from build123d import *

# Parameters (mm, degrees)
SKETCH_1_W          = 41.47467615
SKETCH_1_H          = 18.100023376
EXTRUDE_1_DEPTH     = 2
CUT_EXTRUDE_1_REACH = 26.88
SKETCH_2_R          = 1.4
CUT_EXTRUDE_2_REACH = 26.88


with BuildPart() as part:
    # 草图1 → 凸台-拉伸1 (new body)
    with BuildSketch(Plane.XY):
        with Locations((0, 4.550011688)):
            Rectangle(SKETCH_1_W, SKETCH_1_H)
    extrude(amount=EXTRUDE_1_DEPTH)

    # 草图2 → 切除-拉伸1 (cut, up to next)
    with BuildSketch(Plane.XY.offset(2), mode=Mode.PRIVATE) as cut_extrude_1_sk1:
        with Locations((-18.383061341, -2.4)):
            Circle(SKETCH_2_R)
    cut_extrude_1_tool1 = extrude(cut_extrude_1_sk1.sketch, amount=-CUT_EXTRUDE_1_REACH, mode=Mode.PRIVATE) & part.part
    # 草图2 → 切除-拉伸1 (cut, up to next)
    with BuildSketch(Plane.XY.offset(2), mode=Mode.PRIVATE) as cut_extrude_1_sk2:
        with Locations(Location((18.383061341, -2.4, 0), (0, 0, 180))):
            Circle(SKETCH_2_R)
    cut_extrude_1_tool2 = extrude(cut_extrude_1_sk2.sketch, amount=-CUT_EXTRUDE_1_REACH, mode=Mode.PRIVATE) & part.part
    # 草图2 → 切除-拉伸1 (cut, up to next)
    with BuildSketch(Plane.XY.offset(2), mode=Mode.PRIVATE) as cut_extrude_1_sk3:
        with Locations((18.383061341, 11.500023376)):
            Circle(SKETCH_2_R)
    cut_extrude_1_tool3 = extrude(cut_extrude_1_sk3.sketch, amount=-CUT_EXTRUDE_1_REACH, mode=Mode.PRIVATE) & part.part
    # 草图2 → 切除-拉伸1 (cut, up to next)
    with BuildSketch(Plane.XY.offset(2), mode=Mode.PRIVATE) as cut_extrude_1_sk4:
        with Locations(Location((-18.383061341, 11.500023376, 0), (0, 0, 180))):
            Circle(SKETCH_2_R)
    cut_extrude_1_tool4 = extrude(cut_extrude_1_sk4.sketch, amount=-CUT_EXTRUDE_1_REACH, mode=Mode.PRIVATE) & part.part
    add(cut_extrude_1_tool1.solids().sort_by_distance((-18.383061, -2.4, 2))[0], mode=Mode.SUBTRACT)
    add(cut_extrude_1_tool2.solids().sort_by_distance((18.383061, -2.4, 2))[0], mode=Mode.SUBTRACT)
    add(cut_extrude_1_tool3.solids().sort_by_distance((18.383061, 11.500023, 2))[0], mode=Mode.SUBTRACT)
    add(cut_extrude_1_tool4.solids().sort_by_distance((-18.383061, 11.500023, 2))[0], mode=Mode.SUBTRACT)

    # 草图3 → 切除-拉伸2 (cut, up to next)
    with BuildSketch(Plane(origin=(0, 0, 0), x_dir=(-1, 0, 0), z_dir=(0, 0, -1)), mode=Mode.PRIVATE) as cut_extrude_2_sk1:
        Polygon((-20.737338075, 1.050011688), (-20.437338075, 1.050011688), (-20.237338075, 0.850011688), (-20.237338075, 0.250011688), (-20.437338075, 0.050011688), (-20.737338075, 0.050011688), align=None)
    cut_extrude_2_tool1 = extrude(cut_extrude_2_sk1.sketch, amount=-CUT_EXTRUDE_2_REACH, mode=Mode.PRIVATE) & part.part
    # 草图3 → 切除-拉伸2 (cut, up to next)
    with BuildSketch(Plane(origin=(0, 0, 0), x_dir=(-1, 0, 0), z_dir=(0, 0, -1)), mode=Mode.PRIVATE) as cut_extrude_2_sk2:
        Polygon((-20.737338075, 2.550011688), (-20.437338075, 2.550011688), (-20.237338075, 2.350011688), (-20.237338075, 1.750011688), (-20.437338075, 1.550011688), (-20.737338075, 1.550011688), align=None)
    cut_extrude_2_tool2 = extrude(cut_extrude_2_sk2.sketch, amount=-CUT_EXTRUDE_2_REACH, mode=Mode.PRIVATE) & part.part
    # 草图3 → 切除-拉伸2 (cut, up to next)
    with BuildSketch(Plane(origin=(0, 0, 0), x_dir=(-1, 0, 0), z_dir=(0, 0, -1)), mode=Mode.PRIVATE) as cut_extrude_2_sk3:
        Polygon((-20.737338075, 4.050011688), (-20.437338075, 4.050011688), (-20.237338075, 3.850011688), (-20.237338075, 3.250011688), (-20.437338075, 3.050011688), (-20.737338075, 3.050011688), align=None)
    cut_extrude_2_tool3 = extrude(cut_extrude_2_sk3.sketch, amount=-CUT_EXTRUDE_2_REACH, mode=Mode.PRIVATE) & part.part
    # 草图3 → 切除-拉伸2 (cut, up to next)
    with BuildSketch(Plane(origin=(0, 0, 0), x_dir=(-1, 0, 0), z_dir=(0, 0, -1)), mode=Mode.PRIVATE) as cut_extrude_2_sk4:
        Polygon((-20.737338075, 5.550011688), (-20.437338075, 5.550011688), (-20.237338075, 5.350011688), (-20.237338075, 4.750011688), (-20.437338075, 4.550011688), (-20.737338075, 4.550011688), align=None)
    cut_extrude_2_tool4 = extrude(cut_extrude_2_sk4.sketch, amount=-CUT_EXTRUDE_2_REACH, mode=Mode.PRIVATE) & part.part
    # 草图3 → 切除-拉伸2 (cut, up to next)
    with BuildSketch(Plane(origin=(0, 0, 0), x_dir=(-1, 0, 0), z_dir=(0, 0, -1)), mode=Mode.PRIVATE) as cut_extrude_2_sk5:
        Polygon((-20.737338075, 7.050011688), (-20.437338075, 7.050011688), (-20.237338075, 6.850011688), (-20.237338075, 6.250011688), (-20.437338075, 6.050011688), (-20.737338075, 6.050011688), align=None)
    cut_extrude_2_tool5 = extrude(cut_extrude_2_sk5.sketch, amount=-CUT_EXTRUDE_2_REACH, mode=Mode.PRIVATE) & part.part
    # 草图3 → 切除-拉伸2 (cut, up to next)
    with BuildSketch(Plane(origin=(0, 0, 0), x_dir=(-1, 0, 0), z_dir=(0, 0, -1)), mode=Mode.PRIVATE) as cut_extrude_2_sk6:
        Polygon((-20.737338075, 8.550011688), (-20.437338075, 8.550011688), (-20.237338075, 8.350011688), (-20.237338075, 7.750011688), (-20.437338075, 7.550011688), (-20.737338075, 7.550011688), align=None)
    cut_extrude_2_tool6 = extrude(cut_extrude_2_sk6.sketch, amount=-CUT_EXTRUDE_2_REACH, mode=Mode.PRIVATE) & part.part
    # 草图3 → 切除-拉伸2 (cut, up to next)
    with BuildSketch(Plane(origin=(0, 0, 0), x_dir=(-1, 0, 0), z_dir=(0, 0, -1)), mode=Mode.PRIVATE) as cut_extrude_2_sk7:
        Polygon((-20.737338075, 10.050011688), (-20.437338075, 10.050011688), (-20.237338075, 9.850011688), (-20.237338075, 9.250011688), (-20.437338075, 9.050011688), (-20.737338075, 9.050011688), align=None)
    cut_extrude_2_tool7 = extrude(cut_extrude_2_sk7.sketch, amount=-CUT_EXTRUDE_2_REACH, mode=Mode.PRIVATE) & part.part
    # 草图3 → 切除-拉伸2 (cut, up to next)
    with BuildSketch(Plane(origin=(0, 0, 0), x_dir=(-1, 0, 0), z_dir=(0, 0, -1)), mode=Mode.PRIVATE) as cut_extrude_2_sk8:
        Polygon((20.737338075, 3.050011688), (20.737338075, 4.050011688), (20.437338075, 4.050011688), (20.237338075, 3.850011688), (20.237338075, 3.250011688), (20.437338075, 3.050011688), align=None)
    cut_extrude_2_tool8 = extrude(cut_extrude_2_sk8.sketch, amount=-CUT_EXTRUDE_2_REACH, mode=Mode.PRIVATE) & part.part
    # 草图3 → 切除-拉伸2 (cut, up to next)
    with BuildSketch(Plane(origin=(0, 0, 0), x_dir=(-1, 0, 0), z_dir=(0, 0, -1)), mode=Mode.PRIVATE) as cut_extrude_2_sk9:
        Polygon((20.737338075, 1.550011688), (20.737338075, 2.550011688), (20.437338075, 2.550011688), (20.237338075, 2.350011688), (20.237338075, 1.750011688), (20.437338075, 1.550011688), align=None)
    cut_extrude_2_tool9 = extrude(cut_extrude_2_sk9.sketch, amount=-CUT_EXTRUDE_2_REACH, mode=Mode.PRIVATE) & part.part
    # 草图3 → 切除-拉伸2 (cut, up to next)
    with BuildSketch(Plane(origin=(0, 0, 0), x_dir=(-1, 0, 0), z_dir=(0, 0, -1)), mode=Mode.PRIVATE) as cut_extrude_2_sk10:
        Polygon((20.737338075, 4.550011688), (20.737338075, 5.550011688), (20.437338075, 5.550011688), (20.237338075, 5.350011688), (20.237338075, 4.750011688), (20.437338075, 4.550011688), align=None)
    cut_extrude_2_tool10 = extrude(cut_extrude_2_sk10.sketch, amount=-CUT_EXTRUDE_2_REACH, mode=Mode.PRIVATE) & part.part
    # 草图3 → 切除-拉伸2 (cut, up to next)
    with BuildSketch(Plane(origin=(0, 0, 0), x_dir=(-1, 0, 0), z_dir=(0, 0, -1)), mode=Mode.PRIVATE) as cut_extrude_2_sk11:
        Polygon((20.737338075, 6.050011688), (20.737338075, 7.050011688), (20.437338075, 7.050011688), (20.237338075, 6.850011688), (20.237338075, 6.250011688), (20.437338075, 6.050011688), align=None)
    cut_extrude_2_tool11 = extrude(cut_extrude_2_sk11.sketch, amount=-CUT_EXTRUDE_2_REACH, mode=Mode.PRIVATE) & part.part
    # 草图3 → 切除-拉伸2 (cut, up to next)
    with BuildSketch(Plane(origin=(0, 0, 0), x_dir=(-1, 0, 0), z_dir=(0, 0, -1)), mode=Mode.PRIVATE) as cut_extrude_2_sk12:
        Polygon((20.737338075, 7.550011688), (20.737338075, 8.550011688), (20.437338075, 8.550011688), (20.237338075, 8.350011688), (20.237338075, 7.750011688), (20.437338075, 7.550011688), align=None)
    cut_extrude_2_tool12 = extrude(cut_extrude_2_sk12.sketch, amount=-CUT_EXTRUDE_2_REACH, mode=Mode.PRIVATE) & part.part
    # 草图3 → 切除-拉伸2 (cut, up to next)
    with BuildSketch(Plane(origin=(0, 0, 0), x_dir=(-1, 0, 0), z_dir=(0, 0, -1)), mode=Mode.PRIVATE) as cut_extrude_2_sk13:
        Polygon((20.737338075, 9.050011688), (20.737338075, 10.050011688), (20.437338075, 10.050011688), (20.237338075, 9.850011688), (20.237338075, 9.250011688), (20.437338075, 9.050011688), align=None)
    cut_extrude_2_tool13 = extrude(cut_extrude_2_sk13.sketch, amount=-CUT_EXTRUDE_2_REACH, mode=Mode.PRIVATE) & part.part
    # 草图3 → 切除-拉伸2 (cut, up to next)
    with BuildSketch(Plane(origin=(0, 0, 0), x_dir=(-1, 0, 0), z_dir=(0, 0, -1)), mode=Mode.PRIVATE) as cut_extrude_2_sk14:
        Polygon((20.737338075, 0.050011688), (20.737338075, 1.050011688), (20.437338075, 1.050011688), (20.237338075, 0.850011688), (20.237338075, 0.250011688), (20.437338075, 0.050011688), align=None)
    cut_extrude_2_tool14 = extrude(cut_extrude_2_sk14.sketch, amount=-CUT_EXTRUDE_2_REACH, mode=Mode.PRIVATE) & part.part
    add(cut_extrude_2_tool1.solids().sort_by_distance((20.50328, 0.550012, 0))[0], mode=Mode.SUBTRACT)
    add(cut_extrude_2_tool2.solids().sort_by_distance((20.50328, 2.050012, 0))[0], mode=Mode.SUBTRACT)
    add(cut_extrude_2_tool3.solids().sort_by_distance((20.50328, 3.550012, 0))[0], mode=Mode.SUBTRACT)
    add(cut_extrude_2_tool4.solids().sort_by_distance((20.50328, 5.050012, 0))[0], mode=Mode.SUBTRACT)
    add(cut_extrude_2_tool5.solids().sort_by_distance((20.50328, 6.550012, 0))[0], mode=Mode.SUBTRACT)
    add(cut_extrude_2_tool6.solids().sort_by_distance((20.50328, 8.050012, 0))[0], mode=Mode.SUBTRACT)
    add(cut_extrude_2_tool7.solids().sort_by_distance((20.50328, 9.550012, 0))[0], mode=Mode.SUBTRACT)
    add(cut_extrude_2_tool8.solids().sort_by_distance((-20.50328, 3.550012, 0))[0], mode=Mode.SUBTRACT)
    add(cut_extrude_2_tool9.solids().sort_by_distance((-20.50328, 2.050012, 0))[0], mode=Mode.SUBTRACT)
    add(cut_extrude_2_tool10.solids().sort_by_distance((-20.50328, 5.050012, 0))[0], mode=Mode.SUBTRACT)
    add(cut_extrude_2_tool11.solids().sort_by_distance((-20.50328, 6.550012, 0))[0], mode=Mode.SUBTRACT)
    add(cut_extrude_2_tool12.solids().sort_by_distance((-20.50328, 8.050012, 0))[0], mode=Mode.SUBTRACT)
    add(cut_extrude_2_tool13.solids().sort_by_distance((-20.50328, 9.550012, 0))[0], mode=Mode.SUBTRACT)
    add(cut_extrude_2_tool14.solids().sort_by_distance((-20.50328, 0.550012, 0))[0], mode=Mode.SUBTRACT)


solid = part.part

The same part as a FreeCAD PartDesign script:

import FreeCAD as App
import Part
import Sketcher

doc = App.newDocument("Part")
body = doc.addObject("PartDesign::Body", "Body")

# Sketch on XY plane
sketch1 = body.newObject("Sketcher::SketchObject", "Sketch")
sketch1.AttachmentSupport = (doc.getObject("XY_Plane"), [""])
sketch1.MapMode = "FlatFace"
sketch1.addGeometry(Part.LineSegment(App.Vector(-20.737338, 13.600023, 0), App.Vector(-20.737338, -4.5, 0)), False)
sketch1.addGeometry(Part.LineSegment(App.Vector(-20.737338, -4.5, 0), App.Vector(20.737338, -4.5, 0)), False)
sketch1.addGeometry(Part.LineSegment(App.Vector(20.737338, -4.5, 0), App.Vector(20.737338, 13.600023, 0)), False)
sketch1.addGeometry(Part.LineSegment(App.Vector(20.737338, 13.600023, 0), App.Vector(-20.737338, 13.600023, 0)), False)
sketch1.addConstraint(Sketcher.Constraint("Coincident", 0, 2, 1, 1))
sketch1.addConstraint(Sketcher.Constraint("Coincident", 1, 2, 2, 1))
sketch1.addConstraint(Sketcher.Constraint("Coincident", 2, 2, 3, 1))
sketch1.addConstraint(Sketcher.Constraint("Coincident", 3, 2, 0, 1))
sketch1.addConstraint(Sketcher.Constraint("Vertical", 0))
sketch1.addConstraint(Sketcher.Constraint("Horizontal", 1))
sketch1.addConstraint(Sketcher.Constraint("Vertical", 2))
sketch1.addConstraint(Sketcher.Constraint("Horizontal", 3))
sketch1.addConstraint(Sketcher.Constraint("DistanceY", 0, 2, -1, 1, 4.5))
sketch1.addConstraint(Sketcher.Constraint("DistanceX", 1, 1, 1, 2, 41.474676))
sketch1.addConstraint(Sketcher.Constraint("DistanceY", 0, 2, 0, 1, 18.100023))
sketch1.addConstraint(Sketcher.Constraint("DistanceX", 0, 2, -1, 1, 20.737338))
pad1 = body.newObject("PartDesign::Pad", "Pad")
pad1.Profile = sketch1
pad1.Length = 2

# Sketch on XY plane
sketch2 = body.newObject("Sketcher::SketchObject", "Sketch001")
sketch2.AttachmentSupport = (doc.getObject("XY_Plane"), [""])
sketch2.MapMode = "FlatFace"
sketch2.AttachmentOffset = App.Placement(App.Vector(0, 0, 2), App.Rotation())
sketch2.addGeometry(Part.Circle(App.Vector(-18.383061, -2.4, 0), App.Vector(0, 0, 1), 1.4), False)
sketch2.addConstraint(Sketcher.Constraint("Diameter", 0, 2.8))
sketch2.addConstraint(Sketcher.Constraint("DistanceY", 0, 3, -1, 1, 2.4))
sketch2.addConstraint(Sketcher.Constraint("DistanceX", 0, 3, -1, 1, 18.383061))
pocket1 = body.newObject("PartDesign::Pocket", "Pocket")
pocket1.Profile = sketch2
pocket1.Type = "UpToFirst"

# Sketch on XY plane
sketch3 = body.newObject("Sketcher::SketchObject", "Sketch002")
sketch3.AttachmentSupport = (doc.getObject("XY_Plane"), [""])
sketch3.MapMode = "FlatFace"
sketch3.AttachmentOffset = App.Placement(App.Vector(0, 0, 2), App.Rotation())
sketch3.addGeometry(Part.Circle(App.Vector(18.383061, -2.4, 0), App.Vector(0, 0, 1), 1.4), False)
sketch3.addConstraint(Sketcher.Constraint("Diameter", 0, 2.8))
sketch3.addConstraint(Sketcher.Constraint("DistanceY", 0, 3, -1, 1, 2.4))
sketch3.addConstraint(Sketcher.Constraint("DistanceX", -1, 1, 0, 3, 18.383061))
pocket2 = body.newObject("PartDesign::Pocket", "Pocket001")
pocket2.Profile = sketch3
pocket2.Type = "UpToFirst"

# Sketch on XY plane
sketch4 = body.newObject("Sketcher::SketchObject", "Sketch003")
sketch4.AttachmentSupport = (doc.getObject("XY_Plane"), [""])
sketch4.MapMode = "FlatFace"
sketch4.AttachmentOffset = App.Placement(App.Vector(0, 0, 2), App.Rotation())
sketch4.addGeometry(Part.Circle(App.Vector(18.383061, 11.500023, 0), App.Vector(0, 0, 1), 1.4), False)
sketch4.addConstraint(Sketcher.Constraint("Diameter", 0, 2.8))
sketch4.addConstraint(Sketcher.Constraint("DistanceX", -1, 1, 0, 3, 18.383061))
sketch4.addConstraint(Sketcher.Constraint("DistanceY", -1, 1, 0, 3, 11.500023))
pocket3 = body.newObject("PartDesign::Pocket", "Pocket002")
pocket3.Profile = sketch4
pocket3.Type = "UpToFirst"

# Sketch on XY plane
sketch5 = body.newObject("Sketcher::SketchObject", "Sketch004")
sketch5.AttachmentSupport = (doc.getObject("XY_Plane"), [""])
sketch5.MapMode = "FlatFace"
sketch5.AttachmentOffset = App.Placement(App.Vector(0, 0, 2), App.Rotation())
sketch5.addGeometry(Part.Circle(App.Vector(-18.383061, 11.500023, 0), App.Vector(0, 0, 1), 1.4), False)
sketch5.addConstraint(Sketcher.Constraint("Diameter", 0, 2.8))
sketch5.addConstraint(Sketcher.Constraint("DistanceX", 0, 3, -1, 1, 18.383061))
sketch5.addConstraint(Sketcher.Constraint("DistanceY", -1, 1, 0, 3, 11.500023))
pocket4 = body.newObject("PartDesign::Pocket", "Pocket003")
pocket4.Profile = sketch5
pocket4.Type = "UpToFirst"

# Sketch on XY plane
sketch6 = body.newObject("Sketcher::SketchObject", "Sketch005")
sketch6.AttachmentSupport = (doc.getObject("XY_Plane"), [""])
sketch6.MapMode = "FlatFace"
sketch6.addGeometry(Part.LineSegment(App.Vector(20.437338, 1.050012, 0), App.Vector(20.737338, 1.050012, 0)), False)
sketch6.addGeometry(Part.LineSegment(App.Vector(20.737338, 1.050012, 0), App.Vector(20.737338, 0.050012, 0)), False)
sketch6.addGeometry(Part.LineSegment(App.Vector(20.737338, 0.050012, 0), App.Vector(20.437338, 0.050012, 0)), False)
sketch6.addGeometry(Part.LineSegment(App.Vector(20.437338, 0.050012, 0), App.Vector(20.237338, 0.250012, 0)), False)
sketch6.addGeometry(Part.LineSegment(App.Vector(20.237338, 0.250012, 0), App.Vector(20.237338, 0.850012, 0)), False)
sketch6.addGeometry(Part.LineSegment(App.Vector(20.237338, 0.850012, 0), App.Vector(20.437338, 1.050012, 0)), False)
sketch6.addConstraint(Sketcher.Constraint("Coincident", 0, 2, 1, 1))
sketch6.addConstraint(Sketcher.Constraint("Coincident", 1, 2, 2, 1))
sketch6.addConstraint(Sketcher.Constraint("Coincident", 2, 2, 3, 1))
sketch6.addConstraint(Sketcher.Constraint("Coincident", 3, 2, 4, 1))
sketch6.addConstraint(Sketcher.Constraint("Coincident", 4, 2, 5, 1))
sketch6.addConstraint(Sketcher.Constraint("Coincident", 5, 2, 0, 1))
sketch6.addConstraint(Sketcher.Constraint("Horizontal", 0))
sketch6.addConstraint(Sketcher.Constraint("Vertical", 1))
sketch6.addConstraint(Sketcher.Constraint("Horizontal", 2))
sketch6.addConstraint(Sketcher.Constraint("Vertical", 4))
sketch6.addConstraint(Sketcher.Constraint("Perpendicular", 3, 5))
sketch6.addConstraint(Sketcher.Constraint("Vertical", 2, 2, 5, 2))
sketch6.addConstraint(Sketcher.Constraint("Equal", 3, 5))
sketch6.addConstraint(Sketcher.Constraint("DistanceY", 1, 2, 1, 1, 1.0))
sketch6.addConstraint(Sketcher.Constraint("DistanceX", 0, 1, 0, 2, 0.3))
sketch6.addConstraint(Sketcher.Constraint("DistanceY", 4, 1, 4, 2, 0.6))
sketch6.addConstraint(Sketcher.Constraint("DistanceX", -1, 1, 0, 2, 20.737338))
sketch6.addConstraint(Sketcher.Constraint("DistanceY", -1, 1, 0, 2, 1.050012))
pocket5 = body.newObject("PartDesign::Pocket", "Pocket004")
pocket5.Profile = sketch6
pocket5.Type = "UpToFirst"
pocket5.Reversed = True

# Sketch on XY plane
sketch7 = body.newObject("Sketcher::SketchObject", "Sketch006")
sketch7.AttachmentSupport = (doc.getObject("XY_Plane"), [""])
sketch7.MapMode = "FlatFace"
sketch7.addGeometry(Part.LineSegment(App.Vector(20.437338, 2.550012, 0), App.Vector(20.737338, 2.550012, 0)), False)
sketch7.addGeometry(Part.LineSegment(App.Vector(20.737338, 2.550012, 0), App.Vector(20.737338, 1.550012, 0)), False)
sketch7.addGeometry(Part.LineSegment(App.Vector(20.737338, 1.550012, 0), App.Vector(20.437338, 1.550012, 0)), False)
sketch7.addGeometry(Part.LineSegment(App.Vector(20.437338, 1.550012, 0), App.Vector(20.237338, 1.750012, 0)), False)
sketch7.addGeometry(Part.LineSegment(App.Vector(20.237338, 1.750012, 0), App.Vector(20.237338, 2.350012, 0)), False)
sketch7.addGeometry(Part.LineSegment(App.Vector(20.237338, 2.350012, 0), App.Vector(20.437338, 2.550012, 0)), False)
sketch7.addConstraint(Sketcher.Constraint("Coincident", 0, 2, 1, 1))
sketch7.addConstraint(Sketcher.Constraint("Coincident", 1, 2, 2, 1))
sketch7.addConstraint(Sketcher.Constraint("Coincident", 2, 2, 3, 1))
sketch7.addConstraint(Sketcher.Constraint("Coincident", 3, 2, 4, 1))
sketch7.addConstraint(Sketcher.Constraint("Coincident", 4, 2, 5, 1))
sketch7.addConstraint(Sketcher.Constraint("Coincident", 5, 2, 0, 1))
sketch7.addConstraint(Sketcher.Constraint("Horizontal", 0))
sketch7.addConstraint(Sketcher.Constraint("Vertical", 1))
sketch7.addConstraint(Sketcher.Constraint("Horizontal", 2))
sketch7.addConstraint(Sketcher.Constraint("Vertical", 4))
sketch7.addConstraint(Sketcher.Constraint("Perpendicular", 3, 5))
sketch7.addConstraint(Sketcher.Constraint("Vertical", 2, 2, 5, 2))
sketch7.addConstraint(Sketcher.Constraint("Equal", 3, 5))
sketch7.addConstraint(Sketcher.Constraint("DistanceY", 1, 2, 1, 1, 1.0))
sketch7.addConstraint(Sketcher.Constraint("DistanceX", 0, 1, 0, 2, 0.3))
sketch7.addConstraint(Sketcher.Constraint("DistanceY", 4, 1, 4, 2, 0.6))
sketch7.addConstraint(Sketcher.Constraint("DistanceX", -1, 1, 0, 2, 20.737338))
sketch7.addConstraint(Sketcher.Constraint("DistanceY", -1, 1, 0, 2, 2.550012))
pocket6 = body.newObject("PartDesign::Pocket", "Pocket005")
pocket6.Profile = sketch7
pocket6.Type = "UpToFirst"
pocket6.Reversed = True

# Sketch on XY plane
sketch8 = body.newObject("Sketcher::SketchObject", "Sketch007")
sketch8.AttachmentSupport = (doc.getObject("XY_Plane"), [""])
sketch8.MapMode = "FlatFace"
sketch8.addGeometry(Part.LineSegment(App.Vector(20.437338, 4.050012, 0), App.Vector(20.737338, 4.050012, 0)), False)
sketch8.addGeometry(Part.LineSegment(App.Vector(20.737338, 4.050012, 0), App.Vector(20.737338, 3.050012, 0)), False)
sketch8.addGeometry(Part.LineSegment(App.Vector(20.737338, 3.050012, 0), App.Vector(20.437338, 3.050012, 0)), False)
sketch8.addGeometry(Part.LineSegment(App.Vector(20.437338, 3.050012, 0), App.Vector(20.237338, 3.250012, 0)), False)
sketch8.addGeometry(Part.LineSegment(App.Vector(20.237338, 3.250012, 0), App.Vector(20.237338, 3.850012, 0)), False)
sketch8.addGeometry(Part.LineSegment(App.Vector(20.237338, 3.850012, 0), App.Vector(20.437338, 4.050012, 0)), False)
sketch8.addConstraint(Sketcher.Constraint("Coincident", 0, 2, 1, 1))
sketch8.addConstraint(Sketcher.Constraint("Coincident", 1, 2, 2, 1))
sketch8.addConstraint(Sketcher.Constraint("Coincident", 2, 2, 3, 1))
sketch8.addConstraint(Sketcher.Constraint("Coincident", 3, 2, 4, 1))
sketch8.addConstraint(Sketcher.Constraint("Coincident", 4, 2, 5, 1))
sketch8.addConstraint(Sketcher.Constraint("Coincident", 5, 2, 0, 1))
sketch8.addConstraint(Sketcher.Constraint("Horizontal", 0))
sketch8.addConstraint(Sketcher.Constraint("Vertical", 1))
sketch8.addConstraint(Sketcher.Constraint("Horizontal", 2))
sketch8.addConstraint(Sketcher.Constraint("Vertical", 4))
sketch8.addConstraint(Sketcher.Constraint("Perpendicular", 3, 5))
sketch8.addConstraint(Sketcher.Constraint("Vertical", 2, 2, 5, 2))
sketch8.addConstraint(Sketcher.Constraint("Equal", 3, 5))
sketch8.addConstraint(Sketcher.Constraint("DistanceY", 1, 2, 1, 1, 1.0))
sketch8.addConstraint(Sketcher.Constraint("DistanceX", 0, 1, 0, 2, 0.3))
sketch8.addConstraint(Sketcher.Constraint("DistanceY", 4, 1, 4, 2, 0.6))
sketch8.addConstraint(Sketcher.Constraint("DistanceX", -1, 1, 0, 2, 20.737338))
sketch8.addConstraint(Sketcher.Constraint("DistanceY", -1, 1, 0, 2, 4.050012))
pocket7 = body.newObject("PartDesign::Pocket", "Pocket006")
pocket7.Profile = sketch8
pocket7.Type = "UpToFirst"
pocket7.Reversed = True

# Sketch on XY plane
sketch9 = body.newObject("Sketcher::SketchObject", "Sketch008")
sketch9.AttachmentSupport = (doc.getObject("XY_Plane"), [""])
sketch9.MapMode = "FlatFace"
sketch9.addGeometry(Part.LineSegment(App.Vector(20.437338, 5.550012, 0), App.Vector(20.737338, 5.550012, 0)), False)
sketch9.addGeometry(Part.LineSegment(App.Vector(20.737338, 5.550012, 0), App.Vector(20.737338, 4.550012, 0)), False)
sketch9.addGeometry(Part.LineSegment(App.Vector(20.737338, 4.550012, 0), App.Vector(20.437338, 4.550012, 0)), False)
sketch9.addGeometry(Part.LineSegment(App.Vector(20.437338, 4.550012, 0), App.Vector(20.237338, 4.750012, 0)), False)
sketch9.addGeometry(Part.LineSegment(App.Vector(20.237338, 4.750012, 0), App.Vector(20.237338, 5.350012, 0)), False)
sketch9.addGeometry(Part.LineSegment(App.Vector(20.237338, 5.350012, 0), App.Vector(20.437338, 5.550012, 0)), False)
sketch9.addConstraint(Sketcher.Constraint("Coincident", 0, 2, 1, 1))
sketch9.addConstraint(Sketcher.Constraint("Coincident", 1, 2, 2, 1))
sketch9.addConstraint(Sketcher.Constraint("Coincident", 2, 2, 3, 1))
sketch9.addConstraint(Sketcher.Constraint("Coincident", 3, 2, 4, 1))
sketch9.addConstraint(Sketcher.Constraint("Coincident", 4, 2, 5, 1))
sketch9.addConstraint(Sketcher.Constraint("Coincident", 5, 2, 0, 1))
sketch9.addConstraint(Sketcher.Constraint("Horizontal", 0))
sketch9.addConstraint(Sketcher.Constraint("Vertical", 1))
sketch9.addConstraint(Sketcher.Constraint("Horizontal", 2))
sketch9.addConstraint(Sketcher.Constraint("Vertical", 4))
sketch9.addConstraint(Sketcher.Constraint("Perpendicular", 3, 5))
sketch9.addConstraint(Sketcher.Constraint("Vertical", 2, 2, 5, 2))
sketch9.addConstraint(Sketcher.Constraint("Equal", 3, 5))
sketch9.addConstraint(Sketcher.Constraint("DistanceY", 1, 2, 1, 1, 1.0))
sketch9.addConstraint(Sketcher.Constraint("DistanceX", 0, 1, 0, 2, 0.3))
sketch9.addConstraint(Sketcher.Constraint("DistanceY", 4, 1, 4, 2, 0.6))
sketch9.addConstraint(Sketcher.Constraint("DistanceX", -1, 1, 0, 2, 20.737338))
sketch9.addConstraint(Sketcher.Constraint("DistanceY", -1, 1, 0, 2, 5.550012))
pocket8 = body.newObject("PartDesign::Pocket", "Pocket007")
pocket8.Profile = sketch9
pocket8.Type = "UpToFirst"
pocket8.Reversed = True

# Sketch on XY plane
sketch10 = body.newObject("Sketcher::SketchObject", "Sketch009")
sketch10.AttachmentSupport = (doc.getObject("XY_Plane"), [""])
sketch10.MapMode = "FlatFace"
sketch10.addGeometry(Part.LineSegment(App.Vector(20.437338, 7.050012, 0), App.Vector(20.737338, 7.050012, 0)), False)
sketch10.addGeometry(Part.LineSegment(App.Vector(20.737338, 7.050012, 0), App.Vector(20.737338, 6.050012, 0)), False)
sketch10.addGeometry(Part.LineSegment(App.Vector(20.737338, 6.050012, 0), App.Vector(20.437338, 6.050012, 0)), False)
sketch10.addGeometry(Part.LineSegment(App.Vector(20.437338, 6.050012, 0), App.Vector(20.237338, 6.250012, 0)), False)
sketch10.addGeometry(Part.LineSegment(App.Vector(20.237338, 6.250012, 0), App.Vector(20.237338, 6.850012, 0)), False)
sketch10.addGeometry(Part.LineSegment(App.Vector(20.237338, 6.850012, 0), App.Vector(20.437338, 7.050012, 0)), False)
sketch10.addConstraint(Sketcher.Constraint("Coincident", 0, 2, 1, 1))
sketch10.addConstraint(Sketcher.Constraint("Coincident", 1, 2, 2, 1))
sketch10.addConstraint(Sketcher.Constraint("Coincident", 2, 2, 3, 1))
sketch10.addConstraint(Sketcher.Constraint("Coincident", 3, 2, 4, 1))
sketch10.addConstraint(Sketcher.Constraint("Coincident", 4, 2, 5, 1))
sketch10.addConstraint(Sketcher.Constraint("Coincident", 5, 2, 0, 1))
sketch10.addConstraint(Sketcher.Constraint("Horizontal", 0))
sketch10.addConstraint(Sketcher.Constraint("Vertical", 1))
sketch10.addConstraint(Sketcher.Constraint("Horizontal", 2))
sketch10.addConstraint(Sketcher.Constraint("Vertical", 4))
sketch10.addConstraint(Sketcher.Constraint("Perpendicular", 3, 5))
sketch10.addConstraint(Sketcher.Constraint("Vertical", 2, 2, 5, 2))
sketch10.addConstraint(Sketcher.Constraint("Equal", 3, 5))
sketch10.addConstraint(Sketcher.Constraint("DistanceY", 1, 2, 1, 1, 1.0))
sketch10.addConstraint(Sketcher.Constraint("DistanceX", 0, 1, 0, 2, 0.3))
sketch10.addConstraint(Sketcher.Constraint("DistanceY", 4, 1, 4, 2, 0.6))
sketch10.addConstraint(Sketcher.Constraint("DistanceX", -1, 1, 0, 2, 20.737338))
sketch10.addConstraint(Sketcher.Constraint("DistanceY", -1, 1, 0, 2, 7.050012))
pocket9 = body.newObject("PartDesign::Pocket", "Pocket008")
pocket9.Profile = sketch10
pocket9.Type = "UpToFirst"
pocket9.Reversed = True

# Sketch on XY plane
sketch11 = body.newObject("Sketcher::SketchObject", "Sketch010")
sketch11.AttachmentSupport = (doc.getObject("XY_Plane"), [""])
sketch11.MapMode = "FlatFace"
sketch11.addGeometry(Part.LineSegment(App.Vector(20.437338, 8.550012, 0), App.Vector(20.737338, 8.550012, 0)), False)
sketch11.addGeometry(Part.LineSegment(App.Vector(20.737338, 8.550012, 0), App.Vector(20.737338, 7.550012, 0)), False)
sketch11.addGeometry(Part.LineSegment(App.Vector(20.737338, 7.550012, 0), App.Vector(20.437338, 7.550012, 0)), False)
sketch11.addGeometry(Part.LineSegment(App.Vector(20.437338, 7.550012, 0), App.Vector(20.237338, 7.750012, 0)), False)
sketch11.addGeometry(Part.LineSegment(App.Vector(20.237338, 7.750012, 0), App.Vector(20.237338, 8.350012, 0)), False)
sketch11.addGeometry(Part.LineSegment(App.Vector(20.237338, 8.350012, 0), App.Vector(20.437338, 8.550012, 0)), False)
sketch11.addConstraint(Sketcher.Constraint("Coincident", 0, 2, 1, 1))
sketch11.addConstraint(Sketcher.Constraint("Coincident", 1, 2, 2, 1))
sketch11.addConstraint(Sketcher.Constraint("Coincident", 2, 2, 3, 1))
sketch11.addConstraint(Sketcher.Constraint("Coincident", 3, 2, 4, 1))
sketch11.addConstraint(Sketcher.Constraint("Coincident", 4, 2, 5, 1))
sketch11.addConstraint(Sketcher.Constraint("Coincident", 5, 2, 0, 1))
sketch11.addConstraint(Sketcher.Constraint("Horizontal", 0))
sketch11.addConstraint(Sketcher.Constraint("Vertical", 1))
sketch11.addConstraint(Sketcher.Constraint("Horizontal", 2))
sketch11.addConstraint(Sketcher.Constraint("Vertical", 4))
sketch11.addConstraint(Sketcher.Constraint("Perpendicular", 3, 5))
sketch11.addConstraint(Sketcher.Constraint("Vertical", 2, 2, 5, 2))
sketch11.addConstraint(Sketcher.Constraint("Equal", 3, 5))
sketch11.addConstraint(Sketcher.Constraint("DistanceY", 1, 2, 1, 1, 1.0))
sketch11.addConstraint(Sketcher.Constraint("DistanceX", 0, 1, 0, 2, 0.3))
sketch11.addConstraint(Sketcher.Constraint("DistanceY", 4, 1, 4, 2, 0.6))
sketch11.addConstraint(Sketcher.Constraint("DistanceX", -1, 1, 0, 2, 20.737338))
sketch11.addConstraint(Sketcher.Constraint("DistanceY", -1, 1, 0, 2, 8.550012))
pocket10 = body.newObject("PartDesign::Pocket", "Pocket009")
pocket10.Profile = sketch11
pocket10.Type = "UpToFirst"
pocket10.Reversed = True

# Sketch on XY plane
sketch12 = body.newObject("Sketcher::SketchObject", "Sketch011")
sketch12.AttachmentSupport = (doc.getObject("XY_Plane"), [""])
sketch12.MapMode = "FlatFace"
sketch12.addGeometry(Part.LineSegment(App.Vector(20.437338, 10.050012, 0), App.Vector(20.737338, 10.050012, 0)), False)
sketch12.addGeometry(Part.LineSegment(App.Vector(20.737338, 10.050012, 0), App.Vector(20.737338, 9.050012, 0)), False)
sketch12.addGeometry(Part.LineSegment(App.Vector(20.737338, 9.050012, 0), App.Vector(20.437338, 9.050012, 0)), False)
sketch12.addGeometry(Part.LineSegment(App.Vector(20.437338, 9.050012, 0), App.Vector(20.237338, 9.250012, 0)), False)
sketch12.addGeometry(Part.LineSegment(App.Vector(20.237338, 9.250012, 0), App.Vector(20.237338, 9.850012, 0)), False)
sketch12.addGeometry(Part.LineSegment(App.Vector(20.237338, 9.850012, 0), App.Vector(20.437338, 10.050012, 0)), False)
sketch12.addConstraint(Sketcher.Constraint("Coincident", 0, 2, 1, 1))
sketch12.addConstraint(Sketcher.Constraint("Coincident", 1, 2, 2, 1))
sketch12.addConstraint(Sketcher.Constraint("Coincident", 2, 2, 3, 1))
sketch12.addConstraint(Sketcher.Constraint("Coincident", 3, 2, 4, 1))
sketch12.addConstraint(Sketcher.Constraint("Coincident", 4, 2, 5, 1))
sketch12.addConstraint(Sketcher.Constraint("Coincident", 5, 2, 0, 1))
sketch12.addConstraint(Sketcher.Constraint("Horizontal", 0))
sketch12.addConstraint(Sketcher.Constraint("Vertical", 1))
sketch12.addConstraint(Sketcher.Constraint("Horizontal", 2))
sketch12.addConstraint(Sketcher.Constraint("Vertical", 4))
sketch12.addConstraint(Sketcher.Constraint("Perpendicular", 3, 5))
sketch12.addConstraint(Sketcher.Constraint("Vertical", 2, 2, 5, 2))
sketch12.addConstraint(Sketcher.Constraint("Equal", 3, 5))
sketch12.addConstraint(Sketcher.Constraint("DistanceY", 1, 2, 1, 1, 1.0))
sketch12.addConstraint(Sketcher.Constraint("DistanceX", 0, 1, 0, 2, 0.3))
sketch12.addConstraint(Sketcher.Constraint("DistanceY", 4, 1, 4, 2, 0.6))
sketch12.addConstraint(Sketcher.Constraint("DistanceX", -1, 1, 0, 2, 20.737338))
sketch12.addConstraint(Sketcher.Constraint("DistanceY", -1, 1, 0, 2, 10.050012))
pocket11 = body.newObject("PartDesign::Pocket", "Pocket010")
pocket11.Profile = sketch12
pocket11.Type = "UpToFirst"
pocket11.Reversed = True

# Sketch on XY plane
sketch13 = body.newObject("Sketcher::SketchObject", "Sketch012")
sketch13.AttachmentSupport = (doc.getObject("XY_Plane"), [""])
sketch13.MapMode = "FlatFace"
sketch13.addGeometry(Part.LineSegment(App.Vector(-20.737338, 3.050012, 0), App.Vector(-20.737338, 4.050012, 0)), False)
sketch13.addGeometry(Part.LineSegment(App.Vector(-20.737338, 4.050012, 0), App.Vector(-20.437338, 4.050012, 0)), False)
sketch13.addGeometry(Part.LineSegment(App.Vector(-20.437338, 4.050012, 0), App.Vector(-20.237338, 3.850012, 0)), False)
sketch13.addGeometry(Part.LineSegment(App.Vector(-20.237338, 3.850012, 0), App.Vector(-20.237338, 3.250012, 0)), False)
sketch13.addGeometry(Part.LineSegment(App.Vector(-20.237338, 3.250012, 0), App.Vector(-20.437338, 3.050012, 0)), False)
sketch13.addGeometry(Part.LineSegment(App.Vector(-20.437338, 3.050012, 0), App.Vector(-20.737338, 3.050012, 0)), False)
sketch13.addConstraint(Sketcher.Constraint("Coincident", 0, 2, 1, 1))
sketch13.addConstraint(Sketcher.Constraint("Coincident", 1, 2, 2, 1))
sketch13.addConstraint(Sketcher.Constraint("Coincident", 2, 2, 3, 1))
sketch13.addConstraint(Sketcher.Constraint("Coincident", 3, 2, 4, 1))
sketch13.addConstraint(Sketcher.Constraint("Coincident", 4, 2, 5, 1))
sketch13.addConstraint(Sketcher.Constraint("Coincident", 5, 2, 0, 1))
sketch13.addConstraint(Sketcher.Constraint("Vertical", 0))
sketch13.addConstraint(Sketcher.Constraint("Horizontal", 1))
sketch13.addConstraint(Sketcher.Constraint("Vertical", 3))
sketch13.addConstraint(Sketcher.Constraint("Horizontal", 5))
sketch13.addConstraint(Sketcher.Constraint("Perpendicular", 2, 4))
sketch13.addConstraint(Sketcher.Constraint("Vertical", 1, 2, 4, 2))
sketch13.addConstraint(Sketcher.Constraint("Equal", 2, 4))
sketch13.addConstraint(Sketcher.Constraint("DistanceY", 0, 1, 0, 2, 1.0))
sketch13.addConstraint(Sketcher.Constraint("DistanceX", 1, 1, 1, 2, 0.3))
sketch13.addConstraint(Sketcher.Constraint("DistanceY", 3, 2, 3, 1, 0.6))
sketch13.addConstraint(Sketcher.Constraint("DistanceX", 0, 2, -1, 1, 20.737338))
sketch13.addConstraint(Sketcher.Constraint("DistanceY", -1, 1, 0, 2, 4.050012))
pocket12 = body.newObject("PartDesign::Pocket", "Pocket011")
pocket12.Profile = sketch13
pocket12.Type = "UpToFirst"
pocket12.Reversed = True

# Sketch on XY plane
sketch14 = body.newObject("Sketcher::SketchObject", "Sketch013")
sketch14.AttachmentSupport = (doc.getObject("XY_Plane"), [""])
sketch14.MapMode = "FlatFace"
sketch14.addGeometry(Part.LineSegment(App.Vector(-20.737338, 1.550012, 0), App.Vector(-20.737338, 2.550012, 0)), False)
sketch14.addGeometry(Part.LineSegment(App.Vector(-20.737338, 2.550012, 0), App.Vector(-20.437338, 2.550012, 0)), False)
sketch14.addGeometry(Part.LineSegment(App.Vector(-20.437338, 2.550012, 0), App.Vector(-20.237338, 2.350012, 0)), False)
sketch14.addGeometry(Part.LineSegment(App.Vector(-20.237338, 2.350012, 0), App.Vector(-20.237338, 1.750012, 0)), False)
sketch14.addGeometry(Part.LineSegment(App.Vector(-20.237338, 1.750012, 0), App.Vector(-20.437338, 1.550012, 0)), False)
sketch14.addGeometry(Part.LineSegment(App.Vector(-20.437338, 1.550012, 0), App.Vector(-20.737338, 1.550012, 0)), False)
sketch14.addConstraint(Sketcher.Constraint("Coincident", 0, 2, 1, 1))
sketch14.addConstraint(Sketcher.Constraint("Coincident", 1, 2, 2, 1))
sketch14.addConstraint(Sketcher.Constraint("Coincident", 2, 2, 3, 1))
sketch14.addConstraint(Sketcher.Constraint("Coincident", 3, 2, 4, 1))
sketch14.addConstraint(Sketcher.Constraint("Coincident", 4, 2, 5, 1))
sketch14.addConstraint(Sketcher.Constraint("Coincident", 5, 2, 0, 1))
sketch14.addConstraint(Sketcher.Constraint("Vertical", 0))
sketch14.addConstraint(Sketcher.Constraint("Horizontal", 1))
sketch14.addConstraint(Sketcher.Constraint("Vertical", 3))
sketch14.addConstraint(Sketcher.Constraint("Horizontal", 5))
sketch14.addConstraint(Sketcher.Constraint("Perpendicular", 2, 4))
sketch14.addConstraint(Sketcher.Constraint("Vertical", 1, 2, 4, 2))
sketch14.addConstraint(Sketcher.Constraint("Equal", 2, 4))
sketch14.addConstraint(Sketcher.Constraint("DistanceY", 0, 1, 0, 2, 1.0))
sketch14.addConstraint(Sketcher.Constraint("DistanceX", 1, 1, 1, 2, 0.3))
sketch14.addConstraint(Sketcher.Constraint("DistanceY", 3, 2, 3, 1, 0.6))
sketch14.addConstraint(Sketcher.Constraint("DistanceX", 0, 2, -1, 1, 20.737338))
sketch14.addConstraint(Sketcher.Constraint("DistanceY", -1, 1, 0, 2, 2.550012))
pocket13 = body.newObject("PartDesign::Pocket", "Pocket012")
pocket13.Profile = sketch14
pocket13.Type = "UpToFirst"
pocket13.Reversed = True

# Sketch on XY plane
sketch15 = body.newObject("Sketcher::SketchObject", "Sketch014")
sketch15.AttachmentSupport = (doc.getObject("XY_Plane"), [""])
sketch15.MapMode = "FlatFace"
sketch15.addGeometry(Part.LineSegment(App.Vector(-20.737338, 4.550012, 0), App.Vector(-20.737338, 5.550012, 0)), False)
sketch15.addGeometry(Part.LineSegment(App.Vector(-20.737338, 5.550012, 0), App.Vector(-20.437338, 5.550012, 0)), False)
sketch15.addGeometry(Part.LineSegment(App.Vector(-20.437338, 5.550012, 0), App.Vector(-20.237338, 5.350012, 0)), False)
sketch15.addGeometry(Part.LineSegment(App.Vector(-20.237338, 5.350012, 0), App.Vector(-20.237338, 4.750012, 0)), False)
sketch15.addGeometry(Part.LineSegment(App.Vector(-20.237338, 4.750012, 0), App.Vector(-20.437338, 4.550012, 0)), False)
sketch15.addGeometry(Part.LineSegment(App.Vector(-20.437338, 4.550012, 0), App.Vector(-20.737338, 4.550012, 0)), False)
sketch15.addConstraint(Sketcher.Constraint("Coincident", 0, 2, 1, 1))
sketch15.addConstraint(Sketcher.Constraint("Coincident", 1, 2, 2, 1))
sketch15.addConstraint(Sketcher.Constraint("Coincident", 2, 2, 3, 1))
sketch15.addConstraint(Sketcher.Constraint("Coincident", 3, 2, 4, 1))
sketch15.addConstraint(Sketcher.Constraint("Coincident", 4, 2, 5, 1))
sketch15.addConstraint(Sketcher.Constraint("Coincident", 5, 2, 0, 1))
sketch15.addConstraint(Sketcher.Constraint("Vertical", 0))
sketch15.addConstraint(Sketcher.Constraint("Horizontal", 1))
sketch15.addConstraint(Sketcher.Constraint("Vertical", 3))
sketch15.addConstraint(Sketcher.Constraint("Horizontal", 5))
sketch15.addConstraint(Sketcher.Constraint("Perpendicular", 2, 4))
sketch15.addConstraint(Sketcher.Constraint("Vertical", 1, 2, 4, 2))
sketch15.addConstraint(Sketcher.Constraint("Equal", 2, 4))
sketch15.addConstraint(Sketcher.Constraint("DistanceY", 0, 1, 0, 2, 1.0))
sketch15.addConstraint(Sketcher.Constraint("DistanceX", 1, 1, 1, 2, 0.3))
sketch15.addConstraint(Sketcher.Constraint("DistanceY", 3, 2, 3, 1, 0.6))
sketch15.addConstraint(Sketcher.Constraint("DistanceX", 0, 2, -1, 1, 20.737338))
sketch15.addConstraint(Sketcher.Constraint("DistanceY", -1, 1, 0, 2, 5.550012))
pocket14 = body.newObject("PartDesign::Pocket", "Pocket013")
pocket14.Profile = sketch15
pocket14.Type = "UpToFirst"
pocket14.Reversed = True

# Sketch on XY plane
sketch16 = body.newObject("Sketcher::SketchObject", "Sketch015")
sketch16.AttachmentSupport = (doc.getObject("XY_Plane"), [""])
sketch16.MapMode = "FlatFace"
sketch16.addGeometry(Part.LineSegment(App.Vector(-20.737338, 6.050012, 0), App.Vector(-20.737338, 7.050012, 0)), False)
sketch16.addGeometry(Part.LineSegment(App.Vector(-20.737338, 7.050012, 0), App.Vector(-20.437338, 7.050012, 0)), False)
sketch16.addGeometry(Part.LineSegment(App.Vector(-20.437338, 7.050012, 0), App.Vector(-20.237338, 6.850012, 0)), False)
sketch16.addGeometry(Part.LineSegment(App.Vector(-20.237338, 6.850012, 0), App.Vector(-20.237338, 6.250012, 0)), False)
sketch16.addGeometry(Part.LineSegment(App.Vector(-20.237338, 6.250012, 0), App.Vector(-20.437338, 6.050012, 0)), False)
sketch16.addGeometry(Part.LineSegment(App.Vector(-20.437338, 6.050012, 0), App.Vector(-20.737338, 6.050012, 0)), False)
sketch16.addConstraint(Sketcher.Constraint("Coincident", 0, 2, 1, 1))
sketch16.addConstraint(Sketcher.Constraint("Coincident", 1, 2, 2, 1))
sketch16.addConstraint(Sketcher.Constraint("Coincident", 2, 2, 3, 1))
sketch16.addConstraint(Sketcher.Constraint("Coincident", 3, 2, 4, 1))
sketch16.addConstraint(Sketcher.Constraint("Coincident", 4, 2, 5, 1))
sketch16.addConstraint(Sketcher.Constraint("Coincident", 5, 2, 0, 1))
sketch16.addConstraint(Sketcher.Constraint("Vertical", 0))
sketch16.addConstraint(Sketcher.Constraint("Horizontal", 1))
sketch16.addConstraint(Sketcher.Constraint("Vertical", 3))
sketch16.addConstraint(Sketcher.Constraint("Horizontal", 5))
sketch16.addConstraint(Sketcher.Constraint("Perpendicular", 2, 4))
sketch16.addConstraint(Sketcher.Constraint("Vertical", 1, 2, 4, 2))
sketch16.addConstraint(Sketcher.Constraint("Equal", 2, 4))
sketch16.addConstraint(Sketcher.Constraint("DistanceY", 0, 1, 0, 2, 1.0))
sketch16.addConstraint(Sketcher.Constraint("DistanceX", 1, 1, 1, 2, 0.3))
sketch16.addConstraint(Sketcher.Constraint("DistanceY", 3, 2, 3, 1, 0.6))
sketch16.addConstraint(Sketcher.Constraint("DistanceX", 0, 2, -1, 1, 20.737338))
sketch16.addConstraint(Sketcher.Constraint("DistanceY", -1, 1, 0, 2, 7.050012))
pocket15 = body.newObject("PartDesign::Pocket", "Pocket014")
pocket15.Profile = sketch16
pocket15.Type = "UpToFirst"
pocket15.Reversed = True

# Sketch on XY plane
sketch17 = body.newObject("Sketcher::SketchObject", "Sketch016")
sketch17.AttachmentSupport = (doc.getObject("XY_Plane"), [""])
sketch17.MapMode = "FlatFace"
sketch17.addGeometry(Part.LineSegment(App.Vector(-20.737338, 7.550012, 0), App.Vector(-20.737338, 8.550012, 0)), False)
sketch17.addGeometry(Part.LineSegment(App.Vector(-20.737338, 8.550012, 0), App.Vector(-20.437338, 8.550012, 0)), False)
sketch17.addGeometry(Part.LineSegment(App.Vector(-20.437338, 8.550012, 0), App.Vector(-20.237338, 8.350012, 0)), False)
sketch17.addGeometry(Part.LineSegment(App.Vector(-20.237338, 8.350012, 0), App.Vector(-20.237338, 7.750012, 0)), False)
sketch17.addGeometry(Part.LineSegment(App.Vector(-20.237338, 7.750012, 0), App.Vector(-20.437338, 7.550012, 0)), False)
sketch17.addGeometry(Part.LineSegment(App.Vector(-20.437338, 7.550012, 0), App.Vector(-20.737338, 7.550012, 0)), False)
sketch17.addConstraint(Sketcher.Constraint("Coincident", 0, 2, 1, 1))
sketch17.addConstraint(Sketcher.Constraint("Coincident", 1, 2, 2, 1))
sketch17.addConstraint(Sketcher.Constraint("Coincident", 2, 2, 3, 1))
sketch17.addConstraint(Sketcher.Constraint("Coincident", 3, 2, 4, 1))
sketch17.addConstraint(Sketcher.Constraint("Coincident", 4, 2, 5, 1))
sketch17.addConstraint(Sketcher.Constraint("Coincident", 5, 2, 0, 1))
sketch17.addConstraint(Sketcher.Constraint("Vertical", 0))
sketch17.addConstraint(Sketcher.Constraint("Horizontal", 1))
sketch17.addConstraint(Sketcher.Constraint("Vertical", 3))
sketch17.addConstraint(Sketcher.Constraint("Horizontal", 5))
sketch17.addConstraint(Sketcher.Constraint("Perpendicular", 2, 4))
sketch17.addConstraint(Sketcher.Constraint("Vertical", 1, 2, 4, 2))
sketch17.addConstraint(Sketcher.Constraint("Equal", 2, 4))
sketch17.addConstraint(Sketcher.Constraint("DistanceY", 0, 1, 0, 2, 1.0))
sketch17.addConstraint(Sketcher.Constraint("DistanceX", 1, 1, 1, 2, 0.3))
sketch17.addConstraint(Sketcher.Constraint("DistanceY", 3, 2, 3, 1, 0.6))
sketch17.addConstraint(Sketcher.Constraint("DistanceX", 0, 2, -1, 1, 20.737338))
sketch17.addConstraint(Sketcher.Constraint("DistanceY", -1, 1, 0, 2, 8.550012))
pocket16 = body.newObject("PartDesign::Pocket", "Pocket015")
pocket16.Profile = sketch17
pocket16.Type = "UpToFirst"
pocket16.Reversed = True

# Sketch on XY plane
sketch18 = body.newObject("Sketcher::SketchObject", "Sketch017")
sketch18.AttachmentSupport = (doc.getObject("XY_Plane"), [""])
sketch18.MapMode = "FlatFace"
sketch18.addGeometry(Part.LineSegment(App.Vector(-20.737338, 9.050012, 0), App.Vector(-20.737338, 10.050012, 0)), False)
sketch18.addGeometry(Part.LineSegment(App.Vector(-20.737338, 10.050012, 0), App.Vector(-20.437338, 10.050012, 0)), False)
sketch18.addGeometry(Part.LineSegment(App.Vector(-20.437338, 10.050012, 0), App.Vector(-20.237338, 9.850012, 0)), False)
sketch18.addGeometry(Part.LineSegment(App.Vector(-20.237338, 9.850012, 0), App.Vector(-20.237338, 9.250012, 0)), False)
sketch18.addGeometry(Part.LineSegment(App.Vector(-20.237338, 9.250012, 0), App.Vector(-20.437338, 9.050012, 0)), False)
sketch18.addGeometry(Part.LineSegment(App.Vector(-20.437338, 9.050012, 0), App.Vector(-20.737338, 9.050012, 0)), False)
sketch18.addConstraint(Sketcher.Constraint("Coincident", 0, 2, 1, 1))
sketch18.addConstraint(Sketcher.Constraint("Coincident", 1, 2, 2, 1))
sketch18.addConstraint(Sketcher.Constraint("Coincident", 2, 2, 3, 1))
sketch18.addConstraint(Sketcher.Constraint("Coincident", 3, 2, 4, 1))
sketch18.addConstraint(Sketcher.Constraint("Coincident", 4, 2, 5, 1))
sketch18.addConstraint(Sketcher.Constraint("Coincident", 5, 2, 0, 1))
sketch18.addConstraint(Sketcher.Constraint("Vertical", 0))
sketch18.addConstraint(Sketcher.Constraint("Horizontal", 1))
sketch18.addConstraint(Sketcher.Constraint("Vertical", 3))
sketch18.addConstraint(Sketcher.Constraint("Horizontal", 5))
sketch18.addConstraint(Sketcher.Constraint("Perpendicular", 2, 4))
sketch18.addConstraint(Sketcher.Constraint("Vertical", 1, 2, 4, 2))
sketch18.addConstraint(Sketcher.Constraint("Equal", 2, 4))
sketch18.addConstraint(Sketcher.Constraint("DistanceY", 0, 1, 0, 2, 1.0))
sketch18.addConstraint(Sketcher.Constraint("DistanceX", 1, 1, 1, 2, 0.3))
sketch18.addConstraint(Sketcher.Constraint("DistanceY", 3, 2, 3, 1, 0.6))
sketch18.addConstraint(Sketcher.Constraint("DistanceX", 0, 2, -1, 1, 20.737338))
sketch18.addConstraint(Sketcher.Constraint("DistanceY", -1, 1, 0, 2, 10.050012))
pocket17 = body.newObject("PartDesign::Pocket", "Pocket016")
pocket17.Profile = sketch18
pocket17.Type = "UpToFirst"
pocket17.Reversed = True

# Sketch on XY plane
sketch19 = body.newObject("Sketcher::SketchObject", "Sketch018")
sketch19.AttachmentSupport = (doc.getObject("XY_Plane"), [""])
sketch19.MapMode = "FlatFace"
sketch19.addGeometry(Part.LineSegment(App.Vector(-20.737338, 0.050012, 0), App.Vector(-20.737338, 1.050012, 0)), False)
sketch19.addGeometry(Part.LineSegment(App.Vector(-20.737338, 1.050012, 0), App.Vector(-20.437338, 1.050012, 0)), False)
sketch19.addGeometry(Part.LineSegment(App.Vector(-20.437338, 1.050012, 0), App.Vector(-20.237338, 0.850012, 0)), False)
sketch19.addGeometry(Part.LineSegment(App.Vector(-20.237338, 0.850012, 0), App.Vector(-20.237338, 0.250012, 0)), False)
sketch19.addGeometry(Part.LineSegment(App.Vector(-20.237338, 0.250012, 0), App.Vector(-20.437338, 0.050012, 0)), False)
sketch19.addGeometry(Part.LineSegment(App.Vector(-20.437338, 0.050012, 0), App.Vector(-20.737338, 0.050012, 0)), False)
sketch19.addConstraint(Sketcher.Constraint("Coincident", 0, 2, 1, 1))
sketch19.addConstraint(Sketcher.Constraint("Coincident", 1, 2, 2, 1))
sketch19.addConstraint(Sketcher.Constraint("Coincident", 2, 2, 3, 1))
sketch19.addConstraint(Sketcher.Constraint("Coincident", 3, 2, 4, 1))
sketch19.addConstraint(Sketcher.Constraint("Coincident", 4, 2, 5, 1))
sketch19.addConstraint(Sketcher.Constraint("Coincident", 5, 2, 0, 1))
sketch19.addConstraint(Sketcher.Constraint("Vertical", 0))
sketch19.addConstraint(Sketcher.Constraint("Horizontal", 1))
sketch19.addConstraint(Sketcher.Constraint("Vertical", 3))
sketch19.addConstraint(Sketcher.Constraint("Horizontal", 5))
sketch19.addConstraint(Sketcher.Constraint("Perpendicular", 2, 4))
sketch19.addConstraint(Sketcher.Constraint("Vertical", 1, 2, 4, 2))
sketch19.addConstraint(Sketcher.Constraint("Equal", 2, 4))
sketch19.addConstraint(Sketcher.Constraint("DistanceY", 0, 1, 0, 2, 1.0))
sketch19.addConstraint(Sketcher.Constraint("DistanceX", 1, 1, 1, 2, 0.3))
sketch19.addConstraint(Sketcher.Constraint("DistanceY", 3, 2, 3, 1, 0.6))
sketch19.addConstraint(Sketcher.Constraint("DistanceX", 0, 2, -1, 1, 20.737338))
sketch19.addConstraint(Sketcher.Constraint("DistanceY", -1, 1, 0, 2, 1.050012))
pocket18 = body.newObject("PartDesign::Pocket", "Pocket017")
pocket18.Profile = sketch19
pocket18.Type = "UpToFirst"
pocket18.Reversed = True

doc.recompute()
